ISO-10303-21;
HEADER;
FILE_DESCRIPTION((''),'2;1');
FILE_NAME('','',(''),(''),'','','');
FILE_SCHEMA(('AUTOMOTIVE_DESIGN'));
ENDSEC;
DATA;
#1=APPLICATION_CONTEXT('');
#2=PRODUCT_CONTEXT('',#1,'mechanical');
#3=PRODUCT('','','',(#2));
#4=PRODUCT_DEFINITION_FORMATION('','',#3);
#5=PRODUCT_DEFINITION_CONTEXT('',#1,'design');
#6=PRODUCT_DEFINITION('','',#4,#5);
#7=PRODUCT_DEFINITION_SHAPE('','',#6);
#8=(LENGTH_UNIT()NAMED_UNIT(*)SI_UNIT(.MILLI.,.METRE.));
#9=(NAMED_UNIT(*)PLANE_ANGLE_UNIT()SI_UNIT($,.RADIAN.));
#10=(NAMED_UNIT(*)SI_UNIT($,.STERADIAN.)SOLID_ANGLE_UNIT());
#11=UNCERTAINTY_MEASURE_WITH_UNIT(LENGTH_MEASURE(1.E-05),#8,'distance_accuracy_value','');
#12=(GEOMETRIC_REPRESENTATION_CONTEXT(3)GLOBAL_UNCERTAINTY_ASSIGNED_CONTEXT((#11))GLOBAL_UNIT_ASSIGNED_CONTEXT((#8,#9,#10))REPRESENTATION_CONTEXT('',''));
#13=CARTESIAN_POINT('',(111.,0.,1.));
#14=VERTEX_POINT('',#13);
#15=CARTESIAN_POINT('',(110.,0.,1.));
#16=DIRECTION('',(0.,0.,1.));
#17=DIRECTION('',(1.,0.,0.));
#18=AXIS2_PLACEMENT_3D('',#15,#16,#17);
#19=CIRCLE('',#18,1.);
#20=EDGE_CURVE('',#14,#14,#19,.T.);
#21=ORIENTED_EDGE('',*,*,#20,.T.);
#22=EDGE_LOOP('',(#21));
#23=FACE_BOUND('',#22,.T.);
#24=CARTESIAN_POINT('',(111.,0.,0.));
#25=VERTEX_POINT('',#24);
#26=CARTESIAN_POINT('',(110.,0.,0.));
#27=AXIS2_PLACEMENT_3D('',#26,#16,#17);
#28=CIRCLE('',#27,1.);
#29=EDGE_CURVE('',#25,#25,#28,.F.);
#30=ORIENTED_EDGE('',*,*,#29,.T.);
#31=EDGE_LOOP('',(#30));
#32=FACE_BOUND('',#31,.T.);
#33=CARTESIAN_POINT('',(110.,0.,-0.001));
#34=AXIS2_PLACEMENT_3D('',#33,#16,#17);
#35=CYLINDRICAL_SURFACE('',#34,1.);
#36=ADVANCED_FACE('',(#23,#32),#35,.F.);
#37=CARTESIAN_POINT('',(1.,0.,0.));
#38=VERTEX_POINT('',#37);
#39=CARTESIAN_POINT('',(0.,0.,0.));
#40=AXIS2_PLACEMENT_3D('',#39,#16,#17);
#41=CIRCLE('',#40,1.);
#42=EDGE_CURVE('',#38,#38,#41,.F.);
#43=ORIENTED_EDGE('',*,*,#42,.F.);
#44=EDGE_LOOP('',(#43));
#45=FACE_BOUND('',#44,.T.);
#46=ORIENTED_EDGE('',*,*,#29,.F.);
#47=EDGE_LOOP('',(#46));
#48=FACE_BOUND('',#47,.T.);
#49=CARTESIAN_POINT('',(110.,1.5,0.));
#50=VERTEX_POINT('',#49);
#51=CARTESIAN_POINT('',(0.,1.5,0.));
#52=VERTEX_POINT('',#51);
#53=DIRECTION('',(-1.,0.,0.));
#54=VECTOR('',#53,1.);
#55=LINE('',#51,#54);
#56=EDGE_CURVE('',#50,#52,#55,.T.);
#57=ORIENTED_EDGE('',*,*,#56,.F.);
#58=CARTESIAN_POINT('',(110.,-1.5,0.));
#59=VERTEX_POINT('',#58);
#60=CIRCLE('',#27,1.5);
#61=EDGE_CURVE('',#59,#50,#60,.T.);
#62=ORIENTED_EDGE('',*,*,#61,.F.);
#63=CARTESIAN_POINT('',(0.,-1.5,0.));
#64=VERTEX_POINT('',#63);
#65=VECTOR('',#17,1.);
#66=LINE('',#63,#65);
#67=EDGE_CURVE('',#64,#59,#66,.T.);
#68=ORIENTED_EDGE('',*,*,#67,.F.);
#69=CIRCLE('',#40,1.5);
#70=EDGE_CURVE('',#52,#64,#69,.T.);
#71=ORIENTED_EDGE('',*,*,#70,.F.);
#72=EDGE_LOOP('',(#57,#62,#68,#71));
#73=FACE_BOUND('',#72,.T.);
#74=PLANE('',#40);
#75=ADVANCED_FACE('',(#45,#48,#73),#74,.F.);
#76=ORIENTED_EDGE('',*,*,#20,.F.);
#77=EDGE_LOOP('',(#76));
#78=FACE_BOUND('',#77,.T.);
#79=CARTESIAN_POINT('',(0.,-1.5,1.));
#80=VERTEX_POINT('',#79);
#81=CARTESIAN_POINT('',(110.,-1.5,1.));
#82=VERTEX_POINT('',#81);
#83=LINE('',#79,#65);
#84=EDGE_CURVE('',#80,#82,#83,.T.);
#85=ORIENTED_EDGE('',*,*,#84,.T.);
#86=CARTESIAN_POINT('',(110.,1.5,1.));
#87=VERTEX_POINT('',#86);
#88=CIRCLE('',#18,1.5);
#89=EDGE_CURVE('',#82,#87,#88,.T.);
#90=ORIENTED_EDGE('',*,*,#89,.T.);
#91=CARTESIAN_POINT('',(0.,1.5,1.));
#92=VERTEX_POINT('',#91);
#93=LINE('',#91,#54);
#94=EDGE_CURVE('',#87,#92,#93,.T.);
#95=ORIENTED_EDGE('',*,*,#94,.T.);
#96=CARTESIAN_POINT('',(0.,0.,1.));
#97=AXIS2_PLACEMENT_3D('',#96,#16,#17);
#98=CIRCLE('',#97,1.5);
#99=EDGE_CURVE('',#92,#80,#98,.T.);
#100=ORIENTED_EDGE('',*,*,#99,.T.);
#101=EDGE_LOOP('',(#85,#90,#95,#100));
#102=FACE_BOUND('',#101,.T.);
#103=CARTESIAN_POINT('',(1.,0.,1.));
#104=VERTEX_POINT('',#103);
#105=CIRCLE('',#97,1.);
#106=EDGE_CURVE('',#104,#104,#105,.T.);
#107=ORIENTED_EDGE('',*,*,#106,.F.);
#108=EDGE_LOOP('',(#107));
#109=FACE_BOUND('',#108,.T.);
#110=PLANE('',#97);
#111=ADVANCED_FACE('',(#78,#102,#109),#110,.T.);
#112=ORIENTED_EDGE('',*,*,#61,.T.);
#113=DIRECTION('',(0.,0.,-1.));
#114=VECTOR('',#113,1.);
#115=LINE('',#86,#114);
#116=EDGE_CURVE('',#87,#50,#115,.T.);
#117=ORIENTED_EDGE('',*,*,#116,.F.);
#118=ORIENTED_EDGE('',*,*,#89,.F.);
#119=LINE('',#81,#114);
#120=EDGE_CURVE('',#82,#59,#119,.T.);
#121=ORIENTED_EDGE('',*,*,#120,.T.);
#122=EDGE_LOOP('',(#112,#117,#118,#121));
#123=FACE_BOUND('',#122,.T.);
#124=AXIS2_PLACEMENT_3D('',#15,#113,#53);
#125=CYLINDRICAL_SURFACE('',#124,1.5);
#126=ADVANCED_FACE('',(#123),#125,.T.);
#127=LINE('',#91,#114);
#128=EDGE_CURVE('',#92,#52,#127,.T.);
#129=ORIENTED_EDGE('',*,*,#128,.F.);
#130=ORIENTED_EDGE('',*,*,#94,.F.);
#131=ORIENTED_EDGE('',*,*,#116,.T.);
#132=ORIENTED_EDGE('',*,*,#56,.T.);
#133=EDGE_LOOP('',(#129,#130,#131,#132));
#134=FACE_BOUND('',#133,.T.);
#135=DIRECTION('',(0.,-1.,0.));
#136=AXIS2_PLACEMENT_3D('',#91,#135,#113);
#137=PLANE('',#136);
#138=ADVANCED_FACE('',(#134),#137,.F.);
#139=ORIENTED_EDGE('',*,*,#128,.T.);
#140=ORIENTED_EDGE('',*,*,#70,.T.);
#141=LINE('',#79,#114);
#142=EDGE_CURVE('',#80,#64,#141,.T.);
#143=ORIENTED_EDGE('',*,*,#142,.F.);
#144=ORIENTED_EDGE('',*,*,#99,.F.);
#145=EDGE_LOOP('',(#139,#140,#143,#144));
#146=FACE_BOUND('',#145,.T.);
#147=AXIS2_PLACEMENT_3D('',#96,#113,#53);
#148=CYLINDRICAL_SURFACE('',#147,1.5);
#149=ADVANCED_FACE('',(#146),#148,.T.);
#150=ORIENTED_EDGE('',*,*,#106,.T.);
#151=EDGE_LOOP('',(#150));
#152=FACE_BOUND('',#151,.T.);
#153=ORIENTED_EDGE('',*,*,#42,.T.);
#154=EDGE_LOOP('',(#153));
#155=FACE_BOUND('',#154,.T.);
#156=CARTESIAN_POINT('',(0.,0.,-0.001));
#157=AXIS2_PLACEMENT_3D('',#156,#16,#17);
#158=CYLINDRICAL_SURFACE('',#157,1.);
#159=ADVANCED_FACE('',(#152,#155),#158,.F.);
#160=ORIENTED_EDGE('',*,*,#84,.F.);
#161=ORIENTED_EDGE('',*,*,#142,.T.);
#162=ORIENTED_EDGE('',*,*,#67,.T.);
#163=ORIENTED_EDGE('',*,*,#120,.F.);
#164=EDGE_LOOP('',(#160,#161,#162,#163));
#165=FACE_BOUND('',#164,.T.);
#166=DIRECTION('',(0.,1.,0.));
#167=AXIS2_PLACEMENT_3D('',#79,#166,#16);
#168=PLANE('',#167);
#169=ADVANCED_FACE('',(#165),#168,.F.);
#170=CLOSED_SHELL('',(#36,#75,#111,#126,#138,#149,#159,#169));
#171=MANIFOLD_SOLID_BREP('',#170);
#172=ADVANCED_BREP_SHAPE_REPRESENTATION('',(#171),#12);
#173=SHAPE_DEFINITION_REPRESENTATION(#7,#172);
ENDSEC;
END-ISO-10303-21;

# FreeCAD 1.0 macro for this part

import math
import FreeCAD as App
import Part
import Sketcher
Q = App.Units.Quantity

doc = App.newDocument("Part")
body = doc.addObject("PartDesign::Body", "Body")

sketch1 = body.newObject("Sketcher::SketchObject", "Sketch")
sketch1.AttachmentSupport = (doc.getObject("XY_Plane"), [""])
sketch1.MapMode = "FlatFace"
sketch1.addGeometry([
    Part.LineSegment(App.Vector(110, 1.5, 0), App.Vector(0, 1.5, 0)),
    Part.ArcOfCircle(Part.Circle(App.Vector(0, 0, 0), App.Vector(0, 0, 1), 1.5), math.radians(90), math.radians(270)),
    Part.LineSegment(App.Vector(0, -1.5, 0), App.Vector(110, -1.5, 0)),
    Part.ArcOfCircle(Part.Circle(App.Vector(110, 0, 0), App.Vector(0, 0, 1), 1.5), math.radians(-90), math.radians(90)),
], False)
sketch1.addConstraint([
    Sketcher.Constraint("Tangent", 0, 2, 1, 1),
    Sketcher.Constraint("Tangent", 1, 2, 2, 1),
    Sketcher.Constraint("Tangent", 2, 2, 3, 1),
    Sketcher.Constraint("Tangent", 3, 2, 0, 1),
    Sketcher.Constraint("Horizontal", 0),
    Sketcher.Constraint("Horizontal", 2),
    Sketcher.Constraint("Coincident", 1, 3, -1, 1),
    Sketcher.Constraint("Radius", 1, Q("1.5 mm")),
    Sketcher.Constraint("DistanceX", 0, 2, 0, 1, Q("110 mm")),
])
pad1 = body.newObject("PartDesign::Pad", "Pad")
pad1.Profile = sketch1
pad1.Length = 1

sketch2 = body.newObject("Sketcher::SketchObject", "Sketch001")
sketch2.AttachmentSupport = (doc.getObject("XY_Plane"), [""])
sketch2.MapMode = "FlatFace"
sketch2.AttachmentOffset = App.Placement(App.Vector(0, 0, 1), App.Rotation())
sketch2.addGeometry(Part.Circle(App.Vector(0, 0, 0), App.Vector(0, 0, 1), 1), False)
sketch2.addConstraint([
    Sketcher.Constraint("Coincident", 0, 3, -1, 1),
    Sketcher.Constraint("Diameter", 0, Q("2 mm")),
])
pocket1 = body.newObject("PartDesign::Pocket", "Pocket")
pocket1.Profile = sketch2
pocket1.Type = "UpToFirst"

sketch3 = body.newObject("Sketcher::SketchObject", "Sketch002")
sketch3.AttachmentSupport = (doc.getObject("XY_Plane"), [""])
sketch3.MapMode = "FlatFace"
sketch3.AttachmentOffset = App.Placement(App.Vector(0, 0, 1), App.Rotation())
sketch3.addGeometry(Part.Circle(App.Vector(110, 0, 0), App.Vector(0, 0, 1), 1), False)
sketch3.addConstraint([
    Sketcher.Constraint("PointOnObject", 0, 3, -1),
    Sketcher.Constraint("Diameter", 0, Q("2 mm")),
    Sketcher.Constraint("DistanceX", -1, 1, 0, 3, Q("110 mm")),
])
pocket2 = body.newObject("PartDesign::Pocket", "Pocket001")
pocket2.Profile = sketch3
pocket2.Type = "UpToFirst"

doc.recompute()
